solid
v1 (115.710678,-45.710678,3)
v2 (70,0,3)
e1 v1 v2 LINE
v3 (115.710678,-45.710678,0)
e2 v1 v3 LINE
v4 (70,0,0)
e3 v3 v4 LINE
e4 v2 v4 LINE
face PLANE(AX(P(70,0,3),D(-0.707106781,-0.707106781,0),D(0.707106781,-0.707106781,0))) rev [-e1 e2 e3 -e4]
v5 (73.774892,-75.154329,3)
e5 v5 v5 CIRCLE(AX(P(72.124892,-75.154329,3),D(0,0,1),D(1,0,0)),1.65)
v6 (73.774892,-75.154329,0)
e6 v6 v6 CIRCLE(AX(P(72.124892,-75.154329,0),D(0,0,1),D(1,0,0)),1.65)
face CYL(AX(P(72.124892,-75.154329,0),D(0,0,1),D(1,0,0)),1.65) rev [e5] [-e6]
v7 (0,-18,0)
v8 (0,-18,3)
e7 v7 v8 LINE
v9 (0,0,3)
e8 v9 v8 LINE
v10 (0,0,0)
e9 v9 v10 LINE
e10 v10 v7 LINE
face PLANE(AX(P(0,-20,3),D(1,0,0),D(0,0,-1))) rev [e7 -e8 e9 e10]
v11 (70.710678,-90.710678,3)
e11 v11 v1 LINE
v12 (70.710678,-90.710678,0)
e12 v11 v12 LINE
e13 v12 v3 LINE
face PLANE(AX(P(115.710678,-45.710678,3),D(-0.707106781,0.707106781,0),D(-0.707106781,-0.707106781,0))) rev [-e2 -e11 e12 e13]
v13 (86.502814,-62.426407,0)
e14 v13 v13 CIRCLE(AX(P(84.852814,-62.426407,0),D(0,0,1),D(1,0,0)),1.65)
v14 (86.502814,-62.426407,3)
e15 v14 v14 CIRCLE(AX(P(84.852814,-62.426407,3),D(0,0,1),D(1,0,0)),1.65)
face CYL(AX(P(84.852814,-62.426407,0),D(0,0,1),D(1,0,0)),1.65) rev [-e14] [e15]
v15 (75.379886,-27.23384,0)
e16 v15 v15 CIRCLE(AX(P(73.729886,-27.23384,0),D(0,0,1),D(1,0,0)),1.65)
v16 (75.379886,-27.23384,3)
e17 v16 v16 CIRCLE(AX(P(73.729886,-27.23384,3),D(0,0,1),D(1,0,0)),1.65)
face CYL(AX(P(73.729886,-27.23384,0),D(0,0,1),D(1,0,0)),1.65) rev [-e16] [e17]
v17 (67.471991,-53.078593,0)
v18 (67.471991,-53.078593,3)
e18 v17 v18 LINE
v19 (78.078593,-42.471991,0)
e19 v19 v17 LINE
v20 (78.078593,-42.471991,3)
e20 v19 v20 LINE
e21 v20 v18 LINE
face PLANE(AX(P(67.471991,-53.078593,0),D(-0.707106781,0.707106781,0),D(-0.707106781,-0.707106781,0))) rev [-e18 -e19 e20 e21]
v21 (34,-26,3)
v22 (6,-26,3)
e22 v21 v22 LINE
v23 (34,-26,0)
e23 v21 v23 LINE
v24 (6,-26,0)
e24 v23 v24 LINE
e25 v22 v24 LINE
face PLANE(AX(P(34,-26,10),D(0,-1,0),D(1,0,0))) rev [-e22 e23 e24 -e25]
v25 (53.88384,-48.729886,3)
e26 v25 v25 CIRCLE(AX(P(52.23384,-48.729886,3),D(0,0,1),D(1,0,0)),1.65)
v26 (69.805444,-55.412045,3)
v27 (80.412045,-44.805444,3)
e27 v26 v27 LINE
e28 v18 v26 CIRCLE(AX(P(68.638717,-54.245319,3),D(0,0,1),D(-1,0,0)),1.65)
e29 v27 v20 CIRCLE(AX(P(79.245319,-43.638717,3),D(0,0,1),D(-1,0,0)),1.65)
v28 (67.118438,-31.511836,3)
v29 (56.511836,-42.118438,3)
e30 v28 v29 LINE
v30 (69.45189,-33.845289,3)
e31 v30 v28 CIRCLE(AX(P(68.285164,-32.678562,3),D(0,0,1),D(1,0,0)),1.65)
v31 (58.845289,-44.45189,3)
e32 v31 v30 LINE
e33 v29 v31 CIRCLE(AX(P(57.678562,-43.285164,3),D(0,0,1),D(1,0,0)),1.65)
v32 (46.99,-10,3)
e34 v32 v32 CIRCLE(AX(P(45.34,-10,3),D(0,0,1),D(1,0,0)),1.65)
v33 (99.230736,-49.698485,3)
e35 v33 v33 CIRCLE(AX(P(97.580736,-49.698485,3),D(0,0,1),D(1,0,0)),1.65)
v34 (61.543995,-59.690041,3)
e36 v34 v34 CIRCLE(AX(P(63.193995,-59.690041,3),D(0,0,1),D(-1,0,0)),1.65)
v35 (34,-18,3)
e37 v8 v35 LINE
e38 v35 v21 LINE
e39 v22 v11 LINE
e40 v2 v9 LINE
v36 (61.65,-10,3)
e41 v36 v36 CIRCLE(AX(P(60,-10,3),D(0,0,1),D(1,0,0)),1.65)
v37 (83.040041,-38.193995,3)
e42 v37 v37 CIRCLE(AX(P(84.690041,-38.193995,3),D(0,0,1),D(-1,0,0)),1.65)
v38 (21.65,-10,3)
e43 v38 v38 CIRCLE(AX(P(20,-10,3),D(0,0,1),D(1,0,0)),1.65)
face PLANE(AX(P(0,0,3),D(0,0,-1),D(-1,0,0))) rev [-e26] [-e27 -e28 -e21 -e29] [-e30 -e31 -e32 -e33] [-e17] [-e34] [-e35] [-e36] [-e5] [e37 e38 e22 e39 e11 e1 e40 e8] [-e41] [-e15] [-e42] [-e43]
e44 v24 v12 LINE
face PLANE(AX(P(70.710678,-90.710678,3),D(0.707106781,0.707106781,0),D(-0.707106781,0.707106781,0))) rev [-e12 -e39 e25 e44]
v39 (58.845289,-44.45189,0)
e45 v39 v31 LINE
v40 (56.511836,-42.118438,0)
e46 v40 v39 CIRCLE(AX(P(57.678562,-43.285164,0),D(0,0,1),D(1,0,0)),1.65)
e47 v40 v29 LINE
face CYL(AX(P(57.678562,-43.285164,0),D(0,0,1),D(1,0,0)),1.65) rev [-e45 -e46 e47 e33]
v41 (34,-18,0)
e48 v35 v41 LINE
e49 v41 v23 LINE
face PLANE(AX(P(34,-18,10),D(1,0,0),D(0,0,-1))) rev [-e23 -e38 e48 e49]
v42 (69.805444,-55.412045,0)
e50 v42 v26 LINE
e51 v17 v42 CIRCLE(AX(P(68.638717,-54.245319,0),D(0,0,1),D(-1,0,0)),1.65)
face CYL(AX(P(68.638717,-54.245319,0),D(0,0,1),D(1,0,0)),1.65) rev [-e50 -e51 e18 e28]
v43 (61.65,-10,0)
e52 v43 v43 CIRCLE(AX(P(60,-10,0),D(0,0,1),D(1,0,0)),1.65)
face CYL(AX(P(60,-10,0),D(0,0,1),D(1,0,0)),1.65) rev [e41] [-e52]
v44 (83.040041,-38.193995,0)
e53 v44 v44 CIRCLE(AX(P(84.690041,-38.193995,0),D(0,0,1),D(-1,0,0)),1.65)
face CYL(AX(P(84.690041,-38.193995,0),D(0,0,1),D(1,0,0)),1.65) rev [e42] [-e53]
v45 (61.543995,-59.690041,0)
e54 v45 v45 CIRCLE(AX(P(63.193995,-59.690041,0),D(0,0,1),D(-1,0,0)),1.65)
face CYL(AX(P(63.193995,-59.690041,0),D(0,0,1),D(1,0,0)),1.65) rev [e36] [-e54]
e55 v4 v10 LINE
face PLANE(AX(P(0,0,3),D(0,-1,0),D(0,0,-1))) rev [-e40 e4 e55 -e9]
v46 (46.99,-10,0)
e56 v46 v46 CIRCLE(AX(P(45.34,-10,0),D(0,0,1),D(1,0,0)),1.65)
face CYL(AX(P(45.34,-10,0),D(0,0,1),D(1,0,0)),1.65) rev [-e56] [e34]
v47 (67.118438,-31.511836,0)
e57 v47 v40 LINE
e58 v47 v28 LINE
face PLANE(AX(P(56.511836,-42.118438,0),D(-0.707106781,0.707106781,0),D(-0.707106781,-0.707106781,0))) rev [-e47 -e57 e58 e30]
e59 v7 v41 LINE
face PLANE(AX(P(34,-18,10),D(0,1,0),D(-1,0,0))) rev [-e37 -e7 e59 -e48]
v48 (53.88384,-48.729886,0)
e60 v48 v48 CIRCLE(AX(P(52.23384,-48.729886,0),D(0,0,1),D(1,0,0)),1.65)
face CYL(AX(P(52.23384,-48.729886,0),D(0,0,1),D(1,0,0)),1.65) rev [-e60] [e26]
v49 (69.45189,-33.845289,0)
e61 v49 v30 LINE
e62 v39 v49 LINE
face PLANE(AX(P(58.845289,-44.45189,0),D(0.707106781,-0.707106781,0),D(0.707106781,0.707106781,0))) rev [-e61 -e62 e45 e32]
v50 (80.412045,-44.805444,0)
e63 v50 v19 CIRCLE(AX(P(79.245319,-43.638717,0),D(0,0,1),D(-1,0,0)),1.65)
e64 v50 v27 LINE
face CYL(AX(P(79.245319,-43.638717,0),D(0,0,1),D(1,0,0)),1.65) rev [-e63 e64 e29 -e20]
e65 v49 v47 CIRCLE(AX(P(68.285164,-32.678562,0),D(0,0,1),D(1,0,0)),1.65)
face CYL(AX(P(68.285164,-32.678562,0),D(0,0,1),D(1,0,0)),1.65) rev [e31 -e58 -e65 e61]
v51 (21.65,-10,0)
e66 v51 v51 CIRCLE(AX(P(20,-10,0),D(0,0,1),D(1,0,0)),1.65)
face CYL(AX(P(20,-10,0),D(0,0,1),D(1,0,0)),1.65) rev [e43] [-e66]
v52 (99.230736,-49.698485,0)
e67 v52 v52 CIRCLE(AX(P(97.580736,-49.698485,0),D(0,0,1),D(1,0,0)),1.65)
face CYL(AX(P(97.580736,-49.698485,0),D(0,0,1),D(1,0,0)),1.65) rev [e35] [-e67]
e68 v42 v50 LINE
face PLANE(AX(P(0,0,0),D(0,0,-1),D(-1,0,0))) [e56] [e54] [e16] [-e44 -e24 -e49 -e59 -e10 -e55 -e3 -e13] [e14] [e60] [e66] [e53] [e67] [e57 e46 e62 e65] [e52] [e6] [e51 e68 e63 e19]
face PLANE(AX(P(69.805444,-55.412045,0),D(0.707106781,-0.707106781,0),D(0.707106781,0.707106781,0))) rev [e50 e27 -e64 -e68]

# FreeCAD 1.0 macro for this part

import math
import FreeCAD as App
import Part
import Sketcher

V = App.Vector
Q = App.Units.Quantity

doc = App.newDocument("Part")
body = doc.addObject("PartDesign::Body", "Body")

# Sketch on XY plane
sketch1 = body.newObject("Sketcher::SketchObject", "Sketch")
sketch1.AttachmentSupport = (doc.getObject("XY_Plane"), [""])
sketch1.MapMode = "FlatFace"
sketch1.addGeometry([
    Part.LineSegment(V(70, 0, 0), V(0, 0, 0)),  # 0
    Part.LineSegment(V(0, 0, 0), V(0, -20, 0)),  # 1
    Part.LineSegment(V(0, -20, 0), V(71, -91, 0)),  # 2
    Part.LineSegment(V(71, -91, 0), V(116, -46, 0)),  # 3
    Part.LineSegment(V(116, -46, 0), V(70, 0, 0)),  # 4
], False)
sketch1.addConstraint([
    Sketcher.Constraint("Coincident", 0, 2, 1, 1),
    Sketcher.Constraint("Coincident", 1, 2, 2, 1),
    Sketcher.Constraint("Coincident", 2, 2, 3, 1),
    Sketcher.Constraint("Coincident", 3, 2, 4, 1),
    Sketcher.Constraint("Coincident", 4, 2, 0, 1),
    Sketcher.Constraint("Horizontal", 0),
    Sketcher.Constraint("Vertical", 1),
    Sketcher.Constraint("Coincident", 0, 2, -1, 1),
    Sketcher.Constraint("Perpendicular", 2, 3),
    Sketcher.Constraint("Perpendicular", 3, 4),
    Sketcher.Constraint("DistanceX", 0, 2, 0, 1, 70.0),
    Sketcher.Constraint("DistanceY", 1, 2, 1, 1, 20.0),
    Sketcher.Constraint("Angle", 2, Q("-45 deg")),
    Sketcher.Constraint("Distance", 2, 100.0),
])
pad1 = body.newObject("PartDesign::Pad", "Pad")
pad1.Profile = sketch1
pad1.Length = 3

# Sketch on XY plane
sketch2 = body.newObject("Sketcher::SketchObject", "Sketch001")
sketch2.AttachmentSupport = (doc.getObject("XY_Plane"), [""])
sketch2.MapMode = "FlatFace"
sketch2.AttachmentOffset = App.Placement(V(0, 0, 3), App.Rotation())
sketch2.addGeometry([
    Part.Circle(V(72.1, -75.2, 0), V(0, 0, 1), 1.6),  # 0
    Part.Circle(V(97.6, -49.7, 0), V(0, 0, 1), 1.6),  # 1
    Part.Circle(V(20, -10, 0), V(0, 0, 1), 1.6),  # 2
    Part.Circle(V(45.3, -10, 0), V(0, 0, 1), 1.6),  # 3
    Part.Circle(V(60, -10, 0), V(0, 0, 1), 1.6),  # 4
    Part.Circle(V(73.7, -27.2, 0), V(0, 0, 1), 1.6),  # 5
    Part.Circle(V(52.2, -48.7, 0), V(0, 0, 1), 1.6),  # 6
    Part.Circle(V(84.7, -38.2, 0), V(0, 0, 1), 1.6),  # 7
    Part.Circle(V(63.2, -59.7, 0), V(0, 0, 1), 1.6),  # 8
    Part.Circle(V(84.9, -62.4, 0), V(0, 0, 1), 1.6),  # 9
    Part.LineSegment(V(67.1, -31.5, 0), V(56.5, -42.1, 0)),  # 10
    Part.ArcOfCircle(Part.Circle(V(57.7, -43.3, 0), V(0, 0, 1), 1.6), math.radians(135), math.radians(315)),  # 11
    Part.LineSegment(V(58.8, -44.5, 0), V(69.5, -33.8, 0)),  # 12
    Part.ArcOfCircle(Part.Circle(V(68.3, -32.7, 0), V(0, 0, 1), 1.6), math.radians(-45), math.radians(135)),  # 13
    Part.LineSegment(V(69.8, -55.4, 0), V(80.4, -44.8, 0)),  # 14
    Part.ArcOfCircle(Part.Circle(V(79.2, -43.6, 0), V(0, 0, 1), 1.6), math.radians(-45), math.radians(135)),  # 15
    Part.LineSegment(V(78.1, -42.5, 0), V(67.5, -53.1, 0)),  # 16
    Part.ArcOfCircle(Part.Circle(V(68.6, -54.2, 0), V(0, 0, 1), 1.6), math.radians(135), math.radians(315)),  # 17
], False)
sketch2.addConstraint([
    Sketcher.Constraint("Tangent", 10, 2, 11, 1),
    Sketcher.Constraint("Tangent", 11, 2, 12, 1),
    Sketcher.Constraint("Tangent", 12, 2, 13, 1),
    Sketcher.Constraint("Tangent", 13, 2, 10, 1),
    Sketcher.Constraint("Tangent", 14, 2, 15, 1),
    Sketcher.Constraint("Tangent", 15, 2, 16, 1),
    Sketcher.Constraint("Tangent", 16, 2, 17, 1),
    Sketcher.Constraint("Tangent", 17, 2, 14, 1),
    Sketcher.Constraint("Equal", 0, 1),
    Sketcher.Constraint("Equal", 1, 2),
    Sketcher.Constraint("Equal", 2, 3),
    Sketcher.Constraint("Equal", 3, 4),
    Sketcher.Constraint("Equal", 4, 5),
    Sketcher.Constraint("Equal", 5, 6),
    Sketcher.Constraint("Equal", 6, 7),
    Sketcher.Constraint("Equal", 7, 8),
    Sketcher.Constraint("Equal", 8, 9),
    Sketcher.Constraint("Equal", 9, 11),
    Sketcher.Constraint("Equal", 11, 13),
    Sketcher.Constraint("Equal", 13, 15),
    Sketcher.Constraint("Equal", 15, 17),
    Sketcher.Constraint("Parallel", 12, 14),
    Sketcher.Constraint("Horizontal", 2, 3, 3, 3),
    Sketcher.Constraint("Horizontal", 3, 3, 4, 3),
    Sketcher.Constraint("Equal", 12, 14),
    Sketcher.Constraint("Diameter", 0, 3.3),
    Sketcher.Constraint("Angle", 10, Q("-135 deg")),
    Sketcher.Constraint("Distance", 10, 15.0),
    Sketcher.Constraint("DistanceX", -1, 1, 2, 3, 20.0),
    Sketcher.Constraint("DistanceY", 2, 3, -1, 1, 10.0),
    Sketcher.Constraint("DistanceX", -1, 1, 4, 3, 60.0),
    Sketcher.Constraint("DistanceX", -1, 1, 3, 3, 45.34),
    Sketcher.Constraint("DistanceY", 1, 3, 6, 3, 0.968599),
    Sketcher.Constraint("DistanceX", 6, 3, 7, 3, 32.456201),
    Sketcher.Constraint("DistanceY", 8, 3, 5, 3, 32.456201),
    Sketcher.Constraint("DistanceX", -1, 1, 0, 3, 72.124892),
    Sketcher.Constraint("DistanceY", 0, 3, -1, 1, 75.154329),
    Sketcher.Constraint("DistanceY", 5, 3, -1, 1, 27.23384),
    Sketcher.Constraint("DistanceX", -1, 1, 6, 3, 52.23384),
    Sketcher.Constraint("DistanceX", -1, 1, 15, 3, 79.245319),
    Sketcher.Constraint("DistanceY", 17, 3, -1, 1, 54.245319),
    Sketcher.Constraint("DistanceX", -1, 1, 11, 2, 58.845289),
    Sketcher.Constraint("DistanceY", 11, 2, -1, 1, 44.45189),
    Sketcher.Constraint("DistanceX", 5, 3, 1, 3, 23.85085),
    Sketcher.Constraint("DistanceY", 1, 3, 7, 3, 11.50449),
    Sketcher.Constraint("DistanceX", 8, 3, 5, 3, 10.535891),
    Sketcher.Constraint("DistanceX", 8, 3, 9, 3, 21.658818),
    Sketcher.Constraint("DistanceY", 9, 3, 7, 3, 24.232412),
    Sketcher.Constraint("DistanceY", 11, 3, 7, 3, 5.091169),
    Sketcher.Constraint("DistanceX", 11, 3, 9, 3, 27.174251),
])
pocket1 = body.newObject("PartDesign::Pocket", "Pocket")
pocket1.Profile = sketch2
pocket1.Type = "ThroughAll"

# Sketch on XY plane
sketch3 = body.newObject("Sketcher::SketchObject", "Sketch002")
sketch3.AttachmentSupport = (doc.getObject("XY_Plane"), [""])
sketch3.MapMode = "FlatFace"
sketch3.addGeometry([
    Part.LineSegment(V(-2, -18, 0), V(34, -18, 0)),
    Part.LineSegment(V(34, -18, 0), V(34, -26, 0)),
    Part.LineSegment(V(34, -26, 0), V(6, -26, 0)),
    Part.LineSegment(V(6, -26, 0), V(-2, -18, 0)),
], False)
sketch3.addConstraint([
    Sketcher.Constraint("Coincident", 0, 2, 1, 1),
    Sketcher.Constraint("Coincident", 1, 2, 2, 1),
    Sketcher.Constraint("Coincident", 2, 2, 3, 1),
    Sketcher.Constraint("Coincident", 3, 2, 0, 1),
    Sketcher.Constraint("Horizontal", 0),
    Sketcher.Constraint("Vertical", 1),
    Sketcher.Constraint("Horizontal", 2),
    Sketcher.Constraint("DistanceX", 0, 1, 0, 2, 36.0),
    Sketcher.Constraint("DistanceX", 2, 2, 2, 1, 28.0),
    Sketcher.Constraint("DistanceY", 1, 2, 1, 1, 8.0),
    Sketcher.Constraint("DistanceX", -1, 1, 0, 2, 34.0),
    Sketcher.Constraint("DistanceY", 0, 2, -1, 1, 18.0),
])
pocket2 = body.newObject("PartDesign::Pocket", "Pocket001")
pocket2.Profile = sketch3
pocket2.Length = 10
pocket2.Reversed = True

doc.recompute()
